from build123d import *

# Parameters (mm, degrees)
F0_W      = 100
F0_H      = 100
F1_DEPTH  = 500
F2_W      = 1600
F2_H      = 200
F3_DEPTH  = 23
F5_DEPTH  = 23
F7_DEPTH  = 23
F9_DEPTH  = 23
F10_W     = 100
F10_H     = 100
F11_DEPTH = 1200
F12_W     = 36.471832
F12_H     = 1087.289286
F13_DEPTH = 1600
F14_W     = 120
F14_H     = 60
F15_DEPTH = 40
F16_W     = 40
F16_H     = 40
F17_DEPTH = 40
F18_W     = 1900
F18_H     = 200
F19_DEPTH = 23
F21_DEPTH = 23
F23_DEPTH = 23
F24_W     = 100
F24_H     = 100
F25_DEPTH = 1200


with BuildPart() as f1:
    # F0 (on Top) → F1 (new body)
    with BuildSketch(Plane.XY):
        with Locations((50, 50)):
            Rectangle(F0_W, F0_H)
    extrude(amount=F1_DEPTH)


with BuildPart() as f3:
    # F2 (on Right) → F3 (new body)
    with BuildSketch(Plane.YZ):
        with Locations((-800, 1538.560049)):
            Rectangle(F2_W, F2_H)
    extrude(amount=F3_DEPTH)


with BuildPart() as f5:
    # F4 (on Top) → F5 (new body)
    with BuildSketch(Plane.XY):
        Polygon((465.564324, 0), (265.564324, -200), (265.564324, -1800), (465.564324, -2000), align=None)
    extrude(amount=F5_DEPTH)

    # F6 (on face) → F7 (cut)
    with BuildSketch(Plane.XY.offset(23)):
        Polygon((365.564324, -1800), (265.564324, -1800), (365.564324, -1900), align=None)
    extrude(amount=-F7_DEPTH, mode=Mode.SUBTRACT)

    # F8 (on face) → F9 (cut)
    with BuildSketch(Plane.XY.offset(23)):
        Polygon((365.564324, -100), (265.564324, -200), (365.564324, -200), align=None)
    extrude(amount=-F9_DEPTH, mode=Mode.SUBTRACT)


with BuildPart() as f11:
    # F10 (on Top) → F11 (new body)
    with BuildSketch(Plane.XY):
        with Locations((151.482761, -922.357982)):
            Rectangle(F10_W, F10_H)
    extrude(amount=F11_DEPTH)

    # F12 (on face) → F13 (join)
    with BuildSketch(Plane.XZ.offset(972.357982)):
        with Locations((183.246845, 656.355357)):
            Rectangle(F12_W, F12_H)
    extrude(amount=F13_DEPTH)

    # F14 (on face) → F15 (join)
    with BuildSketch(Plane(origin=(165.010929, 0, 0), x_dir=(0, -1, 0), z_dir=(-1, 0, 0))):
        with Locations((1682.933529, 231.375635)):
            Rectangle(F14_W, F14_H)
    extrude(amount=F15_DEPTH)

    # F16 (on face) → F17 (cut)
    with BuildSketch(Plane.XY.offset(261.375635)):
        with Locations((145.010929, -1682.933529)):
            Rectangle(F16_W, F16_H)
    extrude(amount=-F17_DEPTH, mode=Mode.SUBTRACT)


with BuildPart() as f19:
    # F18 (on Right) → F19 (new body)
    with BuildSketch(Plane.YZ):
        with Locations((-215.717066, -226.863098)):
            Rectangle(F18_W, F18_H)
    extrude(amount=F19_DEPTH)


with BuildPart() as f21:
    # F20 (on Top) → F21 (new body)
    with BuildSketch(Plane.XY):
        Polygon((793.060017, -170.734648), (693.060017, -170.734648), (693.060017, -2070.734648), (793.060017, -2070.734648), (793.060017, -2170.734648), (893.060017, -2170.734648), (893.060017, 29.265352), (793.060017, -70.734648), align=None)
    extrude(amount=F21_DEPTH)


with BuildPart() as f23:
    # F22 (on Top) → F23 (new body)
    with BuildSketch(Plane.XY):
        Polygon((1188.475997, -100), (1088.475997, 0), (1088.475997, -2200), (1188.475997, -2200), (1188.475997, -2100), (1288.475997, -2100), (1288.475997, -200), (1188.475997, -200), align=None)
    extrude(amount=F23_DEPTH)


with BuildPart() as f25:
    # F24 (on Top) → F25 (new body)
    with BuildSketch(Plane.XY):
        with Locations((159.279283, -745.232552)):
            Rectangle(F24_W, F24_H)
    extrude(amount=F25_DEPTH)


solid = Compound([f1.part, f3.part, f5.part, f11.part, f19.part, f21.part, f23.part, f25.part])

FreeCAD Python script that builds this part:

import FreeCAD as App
import Part
import Sketcher

V = App.Vector

doc = App.newDocument("Part")
params = doc.addObject("Spreadsheet::Sheet", "Params")
for row, (alias, value) in enumerate([
    ("sketch1_width", "100 mm"),
    ("pad1_length", "500 mm"),
    ("sketch2_width", "1600 mm"),
    ("sketch2_height", "200 mm"),
    ("pad2_length", "23 mm"),
    ("sketch3_height", "1600 mm"),
    ("sketch3_height2", "2000 mm"),
    ("pad3_length", "23 mm"),
    ("sketch4_width", "100 mm"),
    ("pocket1_length", "23 mm"),
    ("sketch5_width", "100 mm"),
    ("pocket2_length", "23 mm"),
    ("sketch6_width", "100 mm"),
    ("pad4_length", "1200 mm"),
    ("pad5_length", "1600 mm"),
    ("sketch8_width", "120 mm"),
    ("sketch8_height", "60 mm"),
    ("pad6_length", "40 mm"),
    ("sketch9_width", "40 mm"),
    ("pocket3_length", "40 mm"),
    ("sketch10_width", "1900 mm"),
    ("sketch10_height", "200 mm"),
    ("pad7_length", "23 mm"),
    ("sketch11_width", "100 mm"),
    ("sketch11_height", "1900 mm"),
    ("sketch11_height2", "2200 mm"),
    ("pad8_length", "23 mm"),
    ("sketch12_width", "100 mm"),
    ("sketch12_height", "2200 mm"),
    ("sketch12_height2", "1900 mm"),
    ("pad9_length", "23 mm"),
    ("sketch13_width", "100 mm"),
    ("pad10_length", "1200 mm"),
], start=1):
    params.set(f"A{row}", alias)
    params.set(f"B{row}", "=" + value)
    params.setAlias(f"B{row}", alias)

body = doc.addObject("PartDesign::Body", "Body")

# Sketch on XY plane
sketch1 = body.newObject("Sketcher::SketchObject", "Sketch")
sketch1.AttachmentSupport = (doc.getObject("XY_Plane"), [""])
sketch1.MapMode = "FlatFace"
sketch1.addGeometry(Part.LineSegment(V(0, 100, 0), V(0, 0, 0)), False)
sketch1.addGeometry(Part.LineSegment(V(0, 0, 0), V(100, 0, 0)), False)
sketch1.addGeometry(Part.LineSegment(V(100, 0, 0), V(100, 100, 0)), False)
sketch1.addGeometry(Part.LineSegment(V(100, 100, 0), V(0, 100, 0)), False)
sketch1.addConstraint(Sketcher.Constraint("Coincident", 0, 2, 1, 1))
sketch1.addConstraint(Sketcher.Constraint("Coincident", 1, 2, 2, 1))
sketch1.addConstraint(Sketcher.Constraint("Coincident", 2, 2, 3, 1))
sketch1.addConstraint(Sketcher.Constraint("Coincident", 3, 2, 0, 1))
sketch1.addConstraint(Sketcher.Constraint("Vertical", 0))
sketch1.addConstraint(Sketcher.Constraint("Horizontal", 1))
sketch1.addConstraint(Sketcher.Constraint("Vertical", 2))
sketch1.addConstraint(Sketcher.Constraint("Horizontal", 3))
sketch1.addConstraint(Sketcher.Constraint("Coincident", 0, 2, -1, 1))
sketch1.addConstraint(Sketcher.Constraint("Equal", 3, 0))
sketch1.addConstraint(Sketcher.Constraint("DistanceX", 1, 1, 1, 2, 100.0))
sketch1.setExpression("Constraints[10]", "Params.sketch1_width")
pad1 = body.newObject("PartDesign::Pad", "Pad")
pad1.Profile = sketch1
pad1.setExpression("Length", "Params.pad1_length")
body2 = doc.addObject("PartDesign::Body", "Body001")

# Sketch on YZ plane
sketch2 = body2.newObject("Sketcher::SketchObject", "Sketch001")
sketch2.AttachmentSupport = (doc.getObject("YZ_Plane001"), [""])
sketch2.MapMode = "FlatFace"
sketch2.addGeometry(Part.LineSegment(V(-1600, 1639, 0), V(-1600, 1439, 0)), False)
sketch2.addGeometry(Part.LineSegment(V(-1600, 1439, 0), V(0, 1439, 0)), False)
sketch2.addGeometry(Part.LineSegment(V(0, 1439, 0), V(0, 1639, 0)), False)
sketch2.addGeometry(Part.LineSegment(V(0, 1639, 0), V(-1600, 1639, 0)), False)
sketch2.addConstraint(Sketcher.Constraint("Coincident", 0, 2, 1, 1))
sketch2.addConstraint(Sketcher.Constraint("Coincident", 1, 2, 2, 1))
sketch2.addConstraint(Sketcher.Constraint("Coincident", 2, 2, 3, 1))
sketch2.addConstraint(Sketcher.Constraint("Coincident", 3, 2, 0, 1))
sketch2.addConstraint(Sketcher.Constraint("Vertical", 0))
sketch2.addConstraint(Sketcher.Constraint("Horizontal", 1))
sketch2.addConstraint(Sketcher.Constraint("Vertical", 2))
sketch2.addConstraint(Sketcher.Constraint("Horizontal", 3))
sketch2.addConstraint(Sketcher.Constraint("PointOnObject", 1, 2, -2))
sketch2.addConstraint(Sketcher.Constraint("DistanceX", 1, 1, 1, 2, 1600.0))
sketch2.addConstraint(Sketcher.Constraint("DistanceY", 0, 2, 0, 1, 200.0))
sketch2.addConstraint(Sketcher.Constraint("DistanceY", -1, 1, 0, 2, 1438.560049))
sketch2.setExpression("Constraints[9]", "Params.sketch2_width")
sketch2.setExpression("Constraints[10]", "Params.sketch2_height")
pad2 = body2.newObject("PartDesign::Pad", "Pad001")
pad2.Profile = sketch2
pad2.setExpression("Length", "Params.pad2_length")
body3 = doc.addObject("PartDesign::Body", "Body002")

# Sketch on XY plane
sketch3 = body3.newObject("Sketcher::SketchObject", "Sketch002")
sketch3.AttachmentSupport = (doc.getObject("XY_Plane002"), [""])
sketch3.MapMode = "FlatFace"
sketch3.addGeometry(Part.LineSegment(V(466, 0, 0), V(266, -200, 0)), False)
sketch3.addGeometry(Part.LineSegment(V(266, -200, 0), V(266, -1800, 0)), False)
sketch3.addGeometry(Part.LineSegment(V(266, -1800, 0), V(466, -2000, 0)), False)
sketch3.addGeometry(Part.LineSegment(V(466, -2000, 0), V(466, 0, 0)), False)
sketch3.addConstraint(Sketcher.Constraint("Coincident", 0, 2, 1, 1))
sketch3.addConstraint(Sketcher.Constraint("Coincident", 1, 2, 2, 1))
sketch3.addConstraint(Sketcher.Constraint("Coincident", 2, 2, 3, 1))
sketch3.addConstraint(Sketcher.Constraint("Coincident", 3, 2, 0, 1))
sketch3.addConstraint(Sketcher.Constraint("Vertical", 1))
sketch3.addConstraint(Sketcher.Constraint("Vertical", 3))
sketch3.addConstraint(Sketcher.Constraint("PointOnObject", 3, 2, -1))
sketch3.addConstraint(Sketcher.Constraint("Perpendicular", 0, 2))
sketch3.addConstraint(Sketcher.Constraint("Equal", 0, 2))
sketch3.addConstraint(Sketcher.Constraint("DistanceY", 1, 2, 1, 1, 1600.0))
sketch3.addConstraint(Sketcher.Constraint("DistanceY", 3, 1, 3, 2, 2000.0))
sketch3.addConstraint(Sketcher.Constraint("DistanceX", -1, 1, 0, 2, 265.564324))
sketch3.setExpression("Constraints[9]", "Params.sketch3_height")
sketch3.setExpression("Constraints[10]", "Params.sketch3_height2")
pad3 = body3.newObject("PartDesign::Pad", "Pad002")
pad3.Profile = sketch3
pad3.setExpression("Length", "Params.pad3_length")

# Sketch on XY plane
sketch4 = body3.newObject("Sketcher::SketchObject", "Sketch003")
sketch4.AttachmentSupport = (doc.getObject("XY_Plane002"), [""])
sketch4.MapMode = "FlatFace"
sketch4.AttachmentOffset = App.Placement(V(0, 0, 23), App.Rotation())
sketch4.addGeometry(Part.LineSegment(V(366, -1800, 0), V(266, -1800, 0)), False)
sketch4.addGeometry(Part.LineSegment(V(266, -1800, 0), V(366, -1900, 0)), False)
sketch4.addGeometry(Part.LineSegment(V(366, -1900, 0), V(366, -1800, 0)), False)
sketch4.addConstraint(Sketcher.Constraint("Coincident", 0, 2, 1, 1))
sketch4.addConstraint(Sketcher.Constraint("Coincident", 1, 2, 2, 1))
sketch4.addConstraint(Sketcher.Constraint("Coincident", 2, 2, 0, 1))
sketch4.addConstraint(Sketcher.Constraint("Horizontal", 0))
sketch4.addConstraint(Sketcher.Constraint("Vertical", 2))
sketch4.addConstraint(Sketcher.Constraint("Equal", 0, 2))
sketch4.addConstraint(Sketcher.Constraint("DistanceX", 0, 2, 0, 1, 100.0))
sketch4.addConstraint(Sketcher.Constraint("DistanceY", 0, 2, -1, 1, 1800.0))
sketch4.addConstraint(Sketcher.Constraint("DistanceX", -1, 1, 0, 2, 265.564324))
sketch4.setExpression("Constraints[6]", "Params.sketch4_width")
pocket1 = body3.newObject("PartDesign::Pocket", "Pocket")
pocket1.Profile = sketch4
pocket1.setExpression("Length", "Params.pocket1_length")

# Sketch on XY plane
sketch5 = body3.newObject("Sketcher::SketchObject", "Sketch004")
sketch5.AttachmentSupport = (doc.getObject("XY_Plane002"), [""])
sketch5.MapMode = "FlatFace"
sketch5.AttachmentOffset = App.Placement(V(0, 0, 23), App.Rotation())
sketch5.addGeometry(Part.LineSegment(V(366, -100, 0), V(266, -200, 0)), False)
sketch5.addGeometry(Part.LineSegment(V(266, -200, 0), V(366, -200, 0)), False)
sketch5.addGeometry(Part.LineSegment(V(366, -200, 0), V(366, -100, 0)), False)
sketch5.addConstraint(Sketcher.Constraint("Coincident", 0, 2, 1, 1))
sketch5.addConstraint(Sketcher.Constraint("Coincident", 1, 2, 2, 1))
sketch5.addConstraint(Sketcher.Constraint("Coincident", 2, 2, 0, 1))
sketch5.addConstraint(Sketcher.Constraint("Horizontal", 1))
sketch5.addConstraint(Sketcher.Constraint("Vertical", 2))
sketch5.addConstraint(Sketcher.Constraint("Equal", 1, 2))
sketch5.addConstraint(Sketcher.Constraint("DistanceX", 1, 1, 1, 2, 100.0))
sketch5.addConstraint(Sketcher.Constraint("DistanceY", 0, 2, -1, 1, 200.0))
sketch5.addConstraint(Sketcher.Constraint("DistanceX", -1, 1, 0, 2, 265.564324))
sketch5.setExpression("Constraints[6]", "Params.sketch5_width")
pocket2 = body3.newObject("PartDesign::Pocket", "Pocket001")
pocket2.Profile = sketch5
pocket2.setExpression("Length", "Params.pocket2_length")
body4 = doc.addObject("PartDesign::Body", "Body003")

# Sketch on XY plane
sketch6 = body4.newObject("Sketcher::SketchObject", "Sketch005")
sketch6.AttachmentSupport = (doc.getObject("XY_Plane003"), [""])
sketch6.MapMode = "FlatFace"
sketch6.addGeometry(Part.LineSegment(V(101, -872, 0), V(101, -972, 0)), False)
sketch6.addGeometry(Part.LineSegment(V(101, -972, 0), V(201, -972, 0)), False)
sketch6.addGeometry(Part.LineSegment(V(201, -972, 0), V(201, -872, 0)), False)
sketch6.addGeometry(Part.LineSegment(V(201, -872, 0), V(101, -872, 0)), False)
sketch6.addConstraint(Sketcher.Constraint("Coincident", 0, 2, 1, 1))
sketch6.addConstraint(Sketcher.Constraint("Coincident", 1, 2, 2, 1))
sketch6.addConstraint(Sketcher.Constraint("Coincident", 2, 2, 3, 1))
sketch6.addConstraint(Sketcher.Constraint("Coincident", 3, 2, 0, 1))
sketch6.addConstraint(Sketcher.Constraint("Vertical", 0))
sketch6.addConstraint(Sketcher.Constraint("Horizontal", 1))
sketch6.addConstraint(Sketcher.Constraint("Vertical", 2))
sketch6.addConstraint(Sketcher.Constraint("Horizontal", 3))
sketch6.addConstraint(Sketcher.Constraint("Equal", 3, 0))
sketch6.addConstraint(Sketcher.Constraint("DistanceX", 1, 1, 1, 2, 100.0))
sketch6.addConstraint(Sketcher.Constraint("DistanceX", -1, 1, 0, 2, 101.482761))
sketch6.addConstraint(Sketcher.Constraint("DistanceY", 0, 2, -1, 1, 972.357982))
sketch6.setExpression("Constraints[9]", "Params.sketch6_width")
pad4 = body4.newObject("PartDesign::Pad", "Pad003")
pad4.Profile = sketch6
pad4.setExpression("Length", "Params.pad4_length")

# Sketch on XZ plane
sketch7 = body4.newObject("Sketcher::SketchObject", "Sketch006")
sketch7.AttachmentSupport = (doc.getObject("XZ_Plane003"), [""])
sketch7.MapMode = "FlatFace"
sketch7.AttachmentOffset = App.Placement(V(0, 0, 972.357982), App.Rotation())
sketch7.addGeometry(Part.LineSegment(V(165, 1200, 0), V(165, 113, 0)), False)
sketch7.addGeometry(Part.LineSegment(V(165, 113, 0), V(201, 113, 0)), False)
sketch7.addGeometry(Part.LineSegment(V(201, 113, 0), V(201, 1200, 0)), False)
sketch7.addGeometry(Part.LineSegment(V(201, 1200, 0), V(165, 1200, 0)), False)
sketch7.addConstraint(Sketcher.Constraint("Coincident", 0, 2, 1, 1))
sketch7.addConstraint(Sketcher.Constraint("Coincident", 1, 2, 2, 1))
sketch7.addConstraint(Sketcher.Constraint("Coincident", 2, 2, 3, 1))
sketch7.addConstraint(Sketcher.Constraint("Coincident", 3, 2, 0, 1))
sketch7.addConstraint(Sketcher.Constraint("Vertical", 0))
sketch7.addConstraint(Sketcher.Constraint("Horizontal", 1))
sketch7.addConstraint(Sketcher.Constraint("Vertical", 2))
sketch7.addConstraint(Sketcher.Constraint("Horizontal", 3))
sketch7.addConstraint(Sketcher.Constraint("DistanceY", -1, 1, 2, 2, 1200.0))
sketch7.addConstraint(Sketcher.Constraint("DistanceX", 1, 1, 1, 2, 36.471832))
sketch7.addConstraint(Sketcher.Constraint("DistanceY", 0, 2, 0, 1, 1087.289286))
sketch7.addConstraint(Sketcher.Constraint("DistanceX", -1, 1, 0, 2, 165.010929))
pad5 = body4.newObject("PartDesign::Pad", "Pad004")
pad5.Profile = sketch7
pad5.setExpression("Length", "Params.pad5_length")

# Sketch on YZ plane
sketch8 = body4.newObject("Sketcher::SketchObject", "Sketch007")
sketch8.AttachmentSupport = (doc.getObject("YZ_Plane003"), [""])
sketch8.MapMode = "FlatFace"
sketch8.AttachmentOffset = App.Placement(V(0, 0, 165.010929), App.Rotation())
sketch8.addGeometry(Part.LineSegment(V(-1623, 261, 0), V(-1623, 201, 0)), False)
sketch8.addGeometry(Part.LineSegment(V(-1623, 201, 0), V(-1743, 201, 0)), False)
sketch8.addGeometry(Part.LineSegment(V(-1743, 201, 0), V(-1743, 261, 0)), False)
sketch8.addGeometry(Part.LineSegment(V(-1743, 261, 0), V(-1623, 261, 0)), False)
sketch8.addConstraint(Sketcher.Constraint("Coincident", 0, 2, 1, 1))
sketch8.addConstraint(Sketcher.Constraint("Coincident", 1, 2, 2, 1))
sketch8.addConstraint(Sketcher.Constraint("Coincident", 2, 2, 3, 1))
sketch8.addConstraint(Sketcher.Constraint("Coincident", 3, 2, 0, 1))
sketch8.addConstraint(Sketcher.Constraint("Vertical", 0))
sketch8.addConstraint(Sketcher.Constraint("Horizontal", 1))
sketch8.addConstraint(Sketcher.Constraint("Vertical", 2))
sketch8.addConstraint(Sketcher.Constraint("Horizontal", 3))
sketch8.addConstraint(Sketcher.Constraint("DistanceX", 1, 2, 1, 1, 120.0))
sketch8.addConstraint(Sketcher.Constraint("DistanceY", 0, 2, 0, 1, 60.0))
sketch8.addConstraint(Sketcher.Constraint("DistanceX", 0, 2, -1, 1, 1622.933529))
sketch8.addConstraint(Sketcher.Constraint("DistanceY", -1, 1, 0, 2, 201.375635))
sketch8.setExpression("Constraints[8]", "Params.sketch8_width")
sketch8.setExpression("Constraints[9]", "Params.sketch8_height")
pad6 = body4.newObject("PartDesign::Pad", "Pad005")
pad6.Profile = sketch8
pad6.setExpression("Length", "Params.pad6_length")
pad6.Reversed = True

# Sketch on XY plane
sketch9 = body4.newObject("Sketcher::SketchObject", "Sketch008")
sketch9.AttachmentSupport = (doc.getObject("XY_Plane003"), [""])
sketch9.MapMode = "FlatFace"
sketch9.AttachmentOffset = App.Placement(V(0, 0, 261.375635), App.Rotation())
sketch9.addGeometry(Part.LineSegment(V(125, -1663, 0), V(125, -1703, 0)), False)
sketch9.addGeometry(Part.LineSegment(V(125, -1703, 0), V(165, -1703, 0)), False)
sketch9.addGeometry(Part.LineSegment(V(165, -1703, 0), V(165, -1663, 0)), False)
sketch9.addGeometry(Part.LineSegment(V(165, -1663, 0), V(125, -1663, 0)), False)
sketch9.addConstraint(Sketcher.Constraint("Coincident", 0, 2, 1, 1))
sketch9.addConstraint(Sketcher.Constraint("Coincident", 1, 2, 2, 1))
sketch9.addConstraint(Sketcher.Constraint("Coincident", 2, 2, 3, 1))
sketch9.addConstraint(Sketcher.Constraint("Coincident", 3, 2, 0, 1))
sketch9.addConstraint(Sketcher.Constraint("Vertical", 0))
sketch9.addConstraint(Sketcher.Constraint("Horizontal", 1))
sketch9.addConstraint(Sketcher.Constraint("Vertical", 2))
sketch9.addConstraint(Sketcher.Constraint("Horizontal", 3))
sketch9.addConstraint(Sketcher.Constraint("Equal", 3, 0))
sketch9.addConstraint(Sketcher.Constraint("DistanceX", 1, 1, 1, 2, 40.0))
sketch9.addConstraint(Sketcher.Constraint("DistanceX", -1, 1, 0, 2, 125.010929))
sketch9.addConstraint(Sketcher.Constraint("DistanceY", 0, 2, -1, 1, 1702.933529))
sketch9.setExpression("Constraints[9]", "Params.sketch9_width")
pocket3 = body4.newObject("PartDesign::Pocket", "Pocket002")
pocket3.Profile = sketch9
pocket3.setExpression("Length", "Params.pocket3_length")
body5 = doc.addObject("PartDesign::Body", "Body004")

# Sketch on YZ plane
sketch10 = body5.newObject("Sketcher::SketchObject", "Sketch009")
sketch10.AttachmentSupport = (doc.getObject("YZ_Plane004"), [""])
sketch10.MapMode = "FlatFace"
sketch10.addGeometry(Part.LineSegment(V(-1166, -127, 0), V(-1166, -327, 0)), False)
sketch10.addGeometry(Part.LineSegment(V(-1166, -327, 0), V(734, -327, 0)), False)
sketch10.addGeometry(Part.LineSegment(V(734, -327, 0), V(734, -127, 0)), False)
sketch10.addGeometry(Part.LineSegment(V(734, -127, 0), V(-1166, -127, 0)), False)
sketch10.addConstraint(Sketcher.Constraint("Coincident", 0, 2, 1, 1))
sketch10.addConstraint(Sketcher.Constraint("Coincident", 1, 2, 2, 1))
sketch10.addConstraint(Sketcher.Constraint("Coincident", 2, 2, 3, 1))
sketch10.addConstraint(Sketcher.Constraint("Coincident", 3, 2, 0, 1))
sketch10.addConstraint(Sketcher.Constraint("Vertical", 0))
sketch10.addConstraint(Sketcher.Constraint("Horizontal", 1))
sketch10.addConstraint(Sketcher.Constraint("Vertical", 2))
sketch10.addConstraint(Sketcher.Constraint("Horizontal", 3))
sketch10.addConstraint(Sketcher.Constraint("DistanceX", 1, 1, 1, 2, 1900.0))
sketch10.addConstraint(Sketcher.Constraint("DistanceY", 0, 2, 0, 1, 200.0))
sketch10.addConstraint(Sketcher.Constraint("DistanceY", 0, 2, -1, 1, 326.863098))
sketch10.addConstraint(Sketcher.Constraint("DistanceX", 0, 2, -1, 1, 1165.717066))
sketch10.setExpression("Constraints[8]", "Params.sketch10_width")
sketch10.setExpression("Constraints[9]", "Params.sketch10_height")
pad7 = body5.newObject("PartDesign::Pad", "Pad006")
pad7.Profile = sketch10
pad7.setExpression("Length", "Params.pad7_length")
body6 = doc.addObject("PartDesign::Body", "Body005")

# Sketch on XY plane
sketch11 = body6.newObject("Sketcher::SketchObject", "Sketch010")
sketch11.AttachmentSupport = (doc.getObject("XY_Plane005"), [""])
sketch11.MapMode = "FlatFace"
sketch11.addGeometry(Part.LineSegment(V(793, -171, 0), V(693, -171, 0)), False)
sketch11.addGeometry(Part.LineSegment(V(693, -171, 0), V(693, -2071, 0)), False)
sketch11.addGeometry(Part.LineSegment(V(693, -2071, 0), V(793, -2071, 0)), False)
sketch11.addGeometry(Part.LineSegment(V(793, -2071, 0), V(793, -2171, 0)), False)
sketch11.addGeometry(Part.LineSegment(V(793, -2171, 0), V(893, -2171, 0)), False)
sketch11.addGeometry(Part.LineSegment(V(893, -2171, 0), V(893, 29, 0)), False)
sketch11.addGeometry(Part.LineSegment(V(893, 29, 0), V(793, -71, 0)), False)
sketch11.addGeometry(Part.LineSegment(V(793, -71, 0), V(793, -171, 0)), False)
sketch11.addConstraint(Sketcher.Constraint("Coincident", 0, 2, 1, 1))
sketch11.addConstraint(Sketcher.Constraint("Coincident", 1, 2, 2, 1))
sketch11.addConstraint(Sketcher.Constraint("Coincident", 2, 2, 3, 1))
sketch11.addConstraint(Sketcher.Constraint("Coincident", 3, 2, 4, 1))
sketch11.addConstraint(Sketcher.Constraint("Coincident", 4, 2, 5, 1))
sketch11.addConstraint(Sketcher.Constraint("Coincident", 5, 2, 6, 1))
sketch11.addConstraint(Sketcher.Constraint("Coincident", 6, 2, 7, 1))
sketch11.addConstraint(Sketcher.Constraint("Coincident", 7, 2, 0, 1))
sketch11.addConstraint(Sketcher.Constraint("Horizontal", 0))
sketch11.addConstraint(Sketcher.Constraint("Vertical", 1))
sketch11.addConstraint(Sketcher.Constraint("Horizontal", 2))
sketch11.addConstraint(Sketcher.Constraint("Vertical", 3))
sketch11.addConstraint(Sketcher.Constraint("Horizontal", 4))
sketch11.addConstraint(Sketcher.Constraint("Vertical", 5))
sketch11.addConstraint(Sketcher.Constraint("Vertical", 7))
sketch11.addConstraint(Sketcher.Constraint("Vertical", 3, 2, 6, 2))
sketch11.addConstraint(Sketcher.Constraint("Equal", 2, 4))
sketch11.addConstraint(Sketcher.Constraint("Equal", 4, 3))
sketch11.addConstraint(Sketcher.Constraint("Equal", 3, 7))
sketch11.addConstraint(Sketcher.Constraint("DistanceX", 0, 2, 0, 1, 100.0))
sketch11.addConstraint(Sketcher.Constraint("DistanceY", 1, 2, 1, 1, 1900.0))
sketch11.addConstraint(Sketcher.Constraint("DistanceY", 5, 1, 5, 2, 2200.0))
sketch11.addConstraint(Sketcher.Constraint("DistanceY", 0, 2, -1, 1, 170.734648))
sketch11.addConstraint(Sketcher.Constraint("DistanceX", -1, 1, 0, 2, 693.060017))
sketch11.setExpression("Constraints[19]", "Params.sketch11_width")
sketch11.setExpression("Constraints[20]", "Params.sketch11_height")
sketch11.setExpression("Constraints[21]", "Params.sketch11_height2")
pad8 = body6.newObject("PartDesign::Pad", "Pad007")
pad8.Profile = sketch11
pad8.setExpression("Length", "Params.pad8_length")
body7 = doc.addObject("PartDesign::Body", "Body006")

# Sketch on XY plane
sketch12 = body7.newObject("Sketcher::SketchObject", "Sketch011")
sketch12.AttachmentSupport = (doc.getObject("XY_Plane006"), [""])
sketch12.MapMode = "FlatFace"
sketch12.addGeometry(Part.LineSegment(V(1188, -100, 0), V(1088, 0, 0)), False)
sketch12.addGeometry(Part.LineSegment(V(1088, 0, 0), V(1088, -2200, 0)), False)
sketch12.addGeometry(Part.LineSegment(V(1088, -2200, 0), V(1188, -2200, 0)), False)
sketch12.addGeometry(Part.LineSegment(V(1188, -2200, 0), V(1188, -2100, 0)), False)
sketch12.addGeometry(Part.LineSegment(V(1188, -2100, 0), V(1288, -2100, 0)), False)
sketch12.addGeometry(Part.LineSegment(V(1288, -2100, 0), V(1288, -200, 0)), False)
sketch12.addGeometry(Part.LineSegment(V(1288, -200, 0), V(1188, -200, 0)), False)
sketch12.addGeometry(Part.LineSegment(V(1188, -200, 0), V(1188, -100, 0)), False)
sketch12.addConstraint(Sketcher.Constraint("Coincident", 0, 2, 1, 1))
sketch12.addConstraint(Sketcher.Constraint("Coincident", 1, 2, 2, 1))
sketch12.addConstraint(Sketcher.Constraint("Coincident", 2, 2, 3, 1))
sketch12.addConstraint(Sketcher.Constraint("Coincident", 3, 2, 4, 1))
sketch12.addConstraint(Sketcher.Constraint("Coincident", 4, 2, 5, 1))
sketch12.addConstraint(Sketcher.Constraint("Coincident", 5, 2, 6, 1))
sketch12.addConstraint(Sketcher.Constraint("Coincident", 6, 2, 7, 1))
sketch12.addConstraint(Sketcher.Constraint("Coincident", 7, 2, 0, 1))
sketch12.addConstraint(Sketcher.Constraint("Vertical", 1))
sketch12.addConstraint(Sketcher.Constraint("Horizontal", 2))
sketch12.addConstraint(Sketcher.Constraint("Vertical", 3))
sketch12.addConstraint(Sketcher.Constraint("Horizontal", 4))
sketch12.addConstraint(Sketcher.Constraint("Vertical", 5))
sketch12.addConstraint(Sketcher.Constraint("Horizontal", 6))
sketch12.addConstraint(Sketcher.Constraint("Vertical", 7))
sketch12.addConstraint(Sketcher.Constraint("PointOnObject", 0, 2, -1))
sketch12.addConstraint(Sketcher.Constraint("Vertical", 3, 2, 6, 2))
sketch12.addConstraint(Sketcher.Constraint("Equal", 2, 4))
sketch12.addConstraint(Sketcher.Constraint("Equal", 6, 3))
sketch12.addConstraint(Sketcher.Constraint("Equal", 3, 7))
sketch12.addConstraint(Sketcher.Constraint("DistanceX", 2, 1, 2, 2, 100.0))
sketch12.addConstraint(Sketcher.Constraint("DistanceY", 1, 2, 1, 1, 2200.0))
sketch12.addConstraint(Sketcher.Constraint("DistanceY", 5, 1, 5, 2, 1900.0))
sketch12.addConstraint(Sketcher.Constraint("DistanceX", -1, 1, 0, 2, 1088.475997))
sketch12.setExpression("Constraints[20]", "Params.sketch12_width")
sketch12.setExpression("Constraints[21]", "Params.sketch12_height")
sketch12.setExpression("Constraints[22]", "Params.sketch12_height2")
pad9 = body7.newObject("PartDesign::Pad", "Pad008")
pad9.Profile = sketch12
pad9.setExpression("Length", "Params.pad9_length")
body8 = doc.addObject("PartDesign::Body", "Body007")

# Sketch on XY plane
sketch13 = body8.newObject("Sketcher::SketchObject", "Sketch012")
sketch13.AttachmentSupport = (doc.getObject("XY_Plane007"), [""])
sketch13.MapMode = "FlatFace"
sketch13.addGeometry(Part.LineSegment(V(109, -695, 0), V(109, -795, 0)), False)
sketch13.addGeometry(Part.LineSegment(V(109, -795, 0), V(209, -795, 0)), False)
sketch13.addGeometry(Part.LineSegment(V(209, -795, 0), V(209, -695, 0)), False)
sketch13.addGeometry(Part.LineSegment(V(209, -695, 0), V(109, -695, 0)), False)
sketch13.addConstraint(Sketcher.Constraint("Coincident", 0, 2, 1, 1))
sketch13.addConstraint(Sketcher.Constraint("Coincident", 1, 2, 2, 1))
sketch13.addConstraint(Sketcher.Constraint("Coincident", 2, 2, 3, 1))
sketch13.addConstraint(Sketcher.Constraint("Coincident", 3, 2, 0, 1))
sketch13.addConstraint(Sketcher.Constraint("Vertical", 0))
sketch13.addConstraint(Sketcher.Constraint("Horizontal", 1))
sketch13.addConstraint(Sketcher.Constraint("Vertical", 2))
sketch13.addConstraint(Sketcher.Constraint("Horizontal", 3))
sketch13.addConstraint(Sketcher.Constraint("Equal", 3, 0))
sketch13.addConstraint(Sketcher.Constraint("DistanceX", 1, 1, 1, 2, 100.0))
sketch13.addConstraint(Sketcher.Constraint("DistanceX", -1, 1, 0, 2, 109.279283))
sketch13.addConstraint(Sketcher.Constraint("DistanceY", 0, 2, -1, 1, 795.232552))
sketch13.setExpression("Constraints[9]", "Params.sketch13_width")
pad10 = body8.newObject("PartDesign::Pad", "Pad009")
pad10.Profile = sketch13
pad10.setExpression("Length", "Params.pad10_length")

doc.recompute()
